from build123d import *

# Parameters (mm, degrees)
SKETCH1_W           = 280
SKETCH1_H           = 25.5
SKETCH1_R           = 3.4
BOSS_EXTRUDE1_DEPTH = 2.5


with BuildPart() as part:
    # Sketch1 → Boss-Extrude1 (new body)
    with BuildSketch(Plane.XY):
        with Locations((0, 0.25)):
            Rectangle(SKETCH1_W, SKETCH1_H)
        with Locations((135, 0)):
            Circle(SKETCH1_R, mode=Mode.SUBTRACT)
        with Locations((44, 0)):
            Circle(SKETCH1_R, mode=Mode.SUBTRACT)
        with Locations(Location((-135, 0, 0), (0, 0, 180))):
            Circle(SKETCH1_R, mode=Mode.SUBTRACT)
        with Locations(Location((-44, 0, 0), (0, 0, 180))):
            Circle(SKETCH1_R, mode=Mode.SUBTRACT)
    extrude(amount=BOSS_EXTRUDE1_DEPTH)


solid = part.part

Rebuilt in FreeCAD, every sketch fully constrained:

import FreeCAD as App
import Part
import Sketcher


def add_polygon(sketch, points):
    """Adds a closed chain of lines whose ends are joined by coincident constraints."""
    first, n = sketch.GeometryCount, len(points)
    for a, b in zip(points, points[1:] + points[:1]):
        sketch.addGeometry(Part.LineSegment(App.Vector(*a, 0), App.Vector(*b, 0)), False)
    for i in range(n):
        sketch.addConstraint(Sketcher.Constraint("Coincident", first + i, 2, first + (i + 1) % n, 1))

doc = App.newDocument("Part")
body = doc.addObject("PartDesign::Body", "Body")

sketch1 = body.newObject("Sketcher::SketchObject", "Sketch")
sketch1.AttachmentSupport = (doc.getObject("XY_Plane"), [""])
sketch1.MapMode = "FlatFace"
add_polygon(sketch1, [(-140, 13), (-140, -12.5), (140, -12.5), (140, 13)])
sketch1.addGeometry(Part.Circle(App.Vector(-135, 0, 0), App.Vector(0, 0, 1), 3.4), False)
sketch1.addGeometry(Part.Circle(App.Vector(-44, 0, 0), App.Vector(0, 0, 1), 3.4), False)
sketch1.addGeometry(Part.Circle(App.Vector(44, 0, 0), App.Vector(0, 0, 1), 3.4), False)
sketch1.addGeometry(Part.Circle(App.Vector(135, 0, 0), App.Vector(0, 0, 1), 3.4), False)
sketch1.addConstraint(Sketcher.Constraint("Vertical", 0))
sketch1.addConstraint(Sketcher.Constraint("Horizontal", 1))
sketch1.addConstraint(Sketcher.Constraint("Vertical", 2))
sketch1.addConstraint(Sketcher.Constraint("Horizontal", 3))
sketch1.addConstraint(Sketcher.Constraint("Equal", 4, 5))
sketch1.addConstraint(Sketcher.Constraint("Equal", 5, 6))
sketch1.addConstraint(Sketcher.Constraint("Equal", 6, 7))
sketch1.addConstraint(Sketcher.Constraint("Symmetric", 5, 3, 6, 3, -1, 1))
sketch1.addConstraint(Sketcher.Constraint("Symmetric", 4, 3, 7, 3, -1, 1))
sketch1.addConstraint(Sketcher.Constraint("PointOnObject", 4, 3, -1))
sketch1.addConstraint(Sketcher.Constraint("PointOnObject", 5, 3, -1))
sketch1.addConstraint(Sketcher.Constraint("Diameter", 4, 6.8))
sketch1.addConstraint(Sketcher.Constraint("DistanceX", 1, 1, 1, 2, 280.0))
sketch1.addConstraint(Sketcher.Constraint("DistanceY", 0, 2, 0, 1, 25.5))
sketch1.addConstraint(Sketcher.Constraint("DistanceX", 4, 3, -1, 1, 135.0))
sketch1.addConstraint(Sketcher.Constraint("DistanceX", 5, 3, -1, 1, 44.0))
sketch1.addConstraint(Sketcher.Constraint("DistanceX", 0, 2, -1, 1, 140.0))
sketch1.addConstraint(Sketcher.Constraint("DistanceY", -1, 1, 2, 2, 13.0))
pad1 = body.newObject("PartDesign::Pad", "Pad")
pad1.Profile = sketch1
pad1.Length = 2.5

doc.recompute()
